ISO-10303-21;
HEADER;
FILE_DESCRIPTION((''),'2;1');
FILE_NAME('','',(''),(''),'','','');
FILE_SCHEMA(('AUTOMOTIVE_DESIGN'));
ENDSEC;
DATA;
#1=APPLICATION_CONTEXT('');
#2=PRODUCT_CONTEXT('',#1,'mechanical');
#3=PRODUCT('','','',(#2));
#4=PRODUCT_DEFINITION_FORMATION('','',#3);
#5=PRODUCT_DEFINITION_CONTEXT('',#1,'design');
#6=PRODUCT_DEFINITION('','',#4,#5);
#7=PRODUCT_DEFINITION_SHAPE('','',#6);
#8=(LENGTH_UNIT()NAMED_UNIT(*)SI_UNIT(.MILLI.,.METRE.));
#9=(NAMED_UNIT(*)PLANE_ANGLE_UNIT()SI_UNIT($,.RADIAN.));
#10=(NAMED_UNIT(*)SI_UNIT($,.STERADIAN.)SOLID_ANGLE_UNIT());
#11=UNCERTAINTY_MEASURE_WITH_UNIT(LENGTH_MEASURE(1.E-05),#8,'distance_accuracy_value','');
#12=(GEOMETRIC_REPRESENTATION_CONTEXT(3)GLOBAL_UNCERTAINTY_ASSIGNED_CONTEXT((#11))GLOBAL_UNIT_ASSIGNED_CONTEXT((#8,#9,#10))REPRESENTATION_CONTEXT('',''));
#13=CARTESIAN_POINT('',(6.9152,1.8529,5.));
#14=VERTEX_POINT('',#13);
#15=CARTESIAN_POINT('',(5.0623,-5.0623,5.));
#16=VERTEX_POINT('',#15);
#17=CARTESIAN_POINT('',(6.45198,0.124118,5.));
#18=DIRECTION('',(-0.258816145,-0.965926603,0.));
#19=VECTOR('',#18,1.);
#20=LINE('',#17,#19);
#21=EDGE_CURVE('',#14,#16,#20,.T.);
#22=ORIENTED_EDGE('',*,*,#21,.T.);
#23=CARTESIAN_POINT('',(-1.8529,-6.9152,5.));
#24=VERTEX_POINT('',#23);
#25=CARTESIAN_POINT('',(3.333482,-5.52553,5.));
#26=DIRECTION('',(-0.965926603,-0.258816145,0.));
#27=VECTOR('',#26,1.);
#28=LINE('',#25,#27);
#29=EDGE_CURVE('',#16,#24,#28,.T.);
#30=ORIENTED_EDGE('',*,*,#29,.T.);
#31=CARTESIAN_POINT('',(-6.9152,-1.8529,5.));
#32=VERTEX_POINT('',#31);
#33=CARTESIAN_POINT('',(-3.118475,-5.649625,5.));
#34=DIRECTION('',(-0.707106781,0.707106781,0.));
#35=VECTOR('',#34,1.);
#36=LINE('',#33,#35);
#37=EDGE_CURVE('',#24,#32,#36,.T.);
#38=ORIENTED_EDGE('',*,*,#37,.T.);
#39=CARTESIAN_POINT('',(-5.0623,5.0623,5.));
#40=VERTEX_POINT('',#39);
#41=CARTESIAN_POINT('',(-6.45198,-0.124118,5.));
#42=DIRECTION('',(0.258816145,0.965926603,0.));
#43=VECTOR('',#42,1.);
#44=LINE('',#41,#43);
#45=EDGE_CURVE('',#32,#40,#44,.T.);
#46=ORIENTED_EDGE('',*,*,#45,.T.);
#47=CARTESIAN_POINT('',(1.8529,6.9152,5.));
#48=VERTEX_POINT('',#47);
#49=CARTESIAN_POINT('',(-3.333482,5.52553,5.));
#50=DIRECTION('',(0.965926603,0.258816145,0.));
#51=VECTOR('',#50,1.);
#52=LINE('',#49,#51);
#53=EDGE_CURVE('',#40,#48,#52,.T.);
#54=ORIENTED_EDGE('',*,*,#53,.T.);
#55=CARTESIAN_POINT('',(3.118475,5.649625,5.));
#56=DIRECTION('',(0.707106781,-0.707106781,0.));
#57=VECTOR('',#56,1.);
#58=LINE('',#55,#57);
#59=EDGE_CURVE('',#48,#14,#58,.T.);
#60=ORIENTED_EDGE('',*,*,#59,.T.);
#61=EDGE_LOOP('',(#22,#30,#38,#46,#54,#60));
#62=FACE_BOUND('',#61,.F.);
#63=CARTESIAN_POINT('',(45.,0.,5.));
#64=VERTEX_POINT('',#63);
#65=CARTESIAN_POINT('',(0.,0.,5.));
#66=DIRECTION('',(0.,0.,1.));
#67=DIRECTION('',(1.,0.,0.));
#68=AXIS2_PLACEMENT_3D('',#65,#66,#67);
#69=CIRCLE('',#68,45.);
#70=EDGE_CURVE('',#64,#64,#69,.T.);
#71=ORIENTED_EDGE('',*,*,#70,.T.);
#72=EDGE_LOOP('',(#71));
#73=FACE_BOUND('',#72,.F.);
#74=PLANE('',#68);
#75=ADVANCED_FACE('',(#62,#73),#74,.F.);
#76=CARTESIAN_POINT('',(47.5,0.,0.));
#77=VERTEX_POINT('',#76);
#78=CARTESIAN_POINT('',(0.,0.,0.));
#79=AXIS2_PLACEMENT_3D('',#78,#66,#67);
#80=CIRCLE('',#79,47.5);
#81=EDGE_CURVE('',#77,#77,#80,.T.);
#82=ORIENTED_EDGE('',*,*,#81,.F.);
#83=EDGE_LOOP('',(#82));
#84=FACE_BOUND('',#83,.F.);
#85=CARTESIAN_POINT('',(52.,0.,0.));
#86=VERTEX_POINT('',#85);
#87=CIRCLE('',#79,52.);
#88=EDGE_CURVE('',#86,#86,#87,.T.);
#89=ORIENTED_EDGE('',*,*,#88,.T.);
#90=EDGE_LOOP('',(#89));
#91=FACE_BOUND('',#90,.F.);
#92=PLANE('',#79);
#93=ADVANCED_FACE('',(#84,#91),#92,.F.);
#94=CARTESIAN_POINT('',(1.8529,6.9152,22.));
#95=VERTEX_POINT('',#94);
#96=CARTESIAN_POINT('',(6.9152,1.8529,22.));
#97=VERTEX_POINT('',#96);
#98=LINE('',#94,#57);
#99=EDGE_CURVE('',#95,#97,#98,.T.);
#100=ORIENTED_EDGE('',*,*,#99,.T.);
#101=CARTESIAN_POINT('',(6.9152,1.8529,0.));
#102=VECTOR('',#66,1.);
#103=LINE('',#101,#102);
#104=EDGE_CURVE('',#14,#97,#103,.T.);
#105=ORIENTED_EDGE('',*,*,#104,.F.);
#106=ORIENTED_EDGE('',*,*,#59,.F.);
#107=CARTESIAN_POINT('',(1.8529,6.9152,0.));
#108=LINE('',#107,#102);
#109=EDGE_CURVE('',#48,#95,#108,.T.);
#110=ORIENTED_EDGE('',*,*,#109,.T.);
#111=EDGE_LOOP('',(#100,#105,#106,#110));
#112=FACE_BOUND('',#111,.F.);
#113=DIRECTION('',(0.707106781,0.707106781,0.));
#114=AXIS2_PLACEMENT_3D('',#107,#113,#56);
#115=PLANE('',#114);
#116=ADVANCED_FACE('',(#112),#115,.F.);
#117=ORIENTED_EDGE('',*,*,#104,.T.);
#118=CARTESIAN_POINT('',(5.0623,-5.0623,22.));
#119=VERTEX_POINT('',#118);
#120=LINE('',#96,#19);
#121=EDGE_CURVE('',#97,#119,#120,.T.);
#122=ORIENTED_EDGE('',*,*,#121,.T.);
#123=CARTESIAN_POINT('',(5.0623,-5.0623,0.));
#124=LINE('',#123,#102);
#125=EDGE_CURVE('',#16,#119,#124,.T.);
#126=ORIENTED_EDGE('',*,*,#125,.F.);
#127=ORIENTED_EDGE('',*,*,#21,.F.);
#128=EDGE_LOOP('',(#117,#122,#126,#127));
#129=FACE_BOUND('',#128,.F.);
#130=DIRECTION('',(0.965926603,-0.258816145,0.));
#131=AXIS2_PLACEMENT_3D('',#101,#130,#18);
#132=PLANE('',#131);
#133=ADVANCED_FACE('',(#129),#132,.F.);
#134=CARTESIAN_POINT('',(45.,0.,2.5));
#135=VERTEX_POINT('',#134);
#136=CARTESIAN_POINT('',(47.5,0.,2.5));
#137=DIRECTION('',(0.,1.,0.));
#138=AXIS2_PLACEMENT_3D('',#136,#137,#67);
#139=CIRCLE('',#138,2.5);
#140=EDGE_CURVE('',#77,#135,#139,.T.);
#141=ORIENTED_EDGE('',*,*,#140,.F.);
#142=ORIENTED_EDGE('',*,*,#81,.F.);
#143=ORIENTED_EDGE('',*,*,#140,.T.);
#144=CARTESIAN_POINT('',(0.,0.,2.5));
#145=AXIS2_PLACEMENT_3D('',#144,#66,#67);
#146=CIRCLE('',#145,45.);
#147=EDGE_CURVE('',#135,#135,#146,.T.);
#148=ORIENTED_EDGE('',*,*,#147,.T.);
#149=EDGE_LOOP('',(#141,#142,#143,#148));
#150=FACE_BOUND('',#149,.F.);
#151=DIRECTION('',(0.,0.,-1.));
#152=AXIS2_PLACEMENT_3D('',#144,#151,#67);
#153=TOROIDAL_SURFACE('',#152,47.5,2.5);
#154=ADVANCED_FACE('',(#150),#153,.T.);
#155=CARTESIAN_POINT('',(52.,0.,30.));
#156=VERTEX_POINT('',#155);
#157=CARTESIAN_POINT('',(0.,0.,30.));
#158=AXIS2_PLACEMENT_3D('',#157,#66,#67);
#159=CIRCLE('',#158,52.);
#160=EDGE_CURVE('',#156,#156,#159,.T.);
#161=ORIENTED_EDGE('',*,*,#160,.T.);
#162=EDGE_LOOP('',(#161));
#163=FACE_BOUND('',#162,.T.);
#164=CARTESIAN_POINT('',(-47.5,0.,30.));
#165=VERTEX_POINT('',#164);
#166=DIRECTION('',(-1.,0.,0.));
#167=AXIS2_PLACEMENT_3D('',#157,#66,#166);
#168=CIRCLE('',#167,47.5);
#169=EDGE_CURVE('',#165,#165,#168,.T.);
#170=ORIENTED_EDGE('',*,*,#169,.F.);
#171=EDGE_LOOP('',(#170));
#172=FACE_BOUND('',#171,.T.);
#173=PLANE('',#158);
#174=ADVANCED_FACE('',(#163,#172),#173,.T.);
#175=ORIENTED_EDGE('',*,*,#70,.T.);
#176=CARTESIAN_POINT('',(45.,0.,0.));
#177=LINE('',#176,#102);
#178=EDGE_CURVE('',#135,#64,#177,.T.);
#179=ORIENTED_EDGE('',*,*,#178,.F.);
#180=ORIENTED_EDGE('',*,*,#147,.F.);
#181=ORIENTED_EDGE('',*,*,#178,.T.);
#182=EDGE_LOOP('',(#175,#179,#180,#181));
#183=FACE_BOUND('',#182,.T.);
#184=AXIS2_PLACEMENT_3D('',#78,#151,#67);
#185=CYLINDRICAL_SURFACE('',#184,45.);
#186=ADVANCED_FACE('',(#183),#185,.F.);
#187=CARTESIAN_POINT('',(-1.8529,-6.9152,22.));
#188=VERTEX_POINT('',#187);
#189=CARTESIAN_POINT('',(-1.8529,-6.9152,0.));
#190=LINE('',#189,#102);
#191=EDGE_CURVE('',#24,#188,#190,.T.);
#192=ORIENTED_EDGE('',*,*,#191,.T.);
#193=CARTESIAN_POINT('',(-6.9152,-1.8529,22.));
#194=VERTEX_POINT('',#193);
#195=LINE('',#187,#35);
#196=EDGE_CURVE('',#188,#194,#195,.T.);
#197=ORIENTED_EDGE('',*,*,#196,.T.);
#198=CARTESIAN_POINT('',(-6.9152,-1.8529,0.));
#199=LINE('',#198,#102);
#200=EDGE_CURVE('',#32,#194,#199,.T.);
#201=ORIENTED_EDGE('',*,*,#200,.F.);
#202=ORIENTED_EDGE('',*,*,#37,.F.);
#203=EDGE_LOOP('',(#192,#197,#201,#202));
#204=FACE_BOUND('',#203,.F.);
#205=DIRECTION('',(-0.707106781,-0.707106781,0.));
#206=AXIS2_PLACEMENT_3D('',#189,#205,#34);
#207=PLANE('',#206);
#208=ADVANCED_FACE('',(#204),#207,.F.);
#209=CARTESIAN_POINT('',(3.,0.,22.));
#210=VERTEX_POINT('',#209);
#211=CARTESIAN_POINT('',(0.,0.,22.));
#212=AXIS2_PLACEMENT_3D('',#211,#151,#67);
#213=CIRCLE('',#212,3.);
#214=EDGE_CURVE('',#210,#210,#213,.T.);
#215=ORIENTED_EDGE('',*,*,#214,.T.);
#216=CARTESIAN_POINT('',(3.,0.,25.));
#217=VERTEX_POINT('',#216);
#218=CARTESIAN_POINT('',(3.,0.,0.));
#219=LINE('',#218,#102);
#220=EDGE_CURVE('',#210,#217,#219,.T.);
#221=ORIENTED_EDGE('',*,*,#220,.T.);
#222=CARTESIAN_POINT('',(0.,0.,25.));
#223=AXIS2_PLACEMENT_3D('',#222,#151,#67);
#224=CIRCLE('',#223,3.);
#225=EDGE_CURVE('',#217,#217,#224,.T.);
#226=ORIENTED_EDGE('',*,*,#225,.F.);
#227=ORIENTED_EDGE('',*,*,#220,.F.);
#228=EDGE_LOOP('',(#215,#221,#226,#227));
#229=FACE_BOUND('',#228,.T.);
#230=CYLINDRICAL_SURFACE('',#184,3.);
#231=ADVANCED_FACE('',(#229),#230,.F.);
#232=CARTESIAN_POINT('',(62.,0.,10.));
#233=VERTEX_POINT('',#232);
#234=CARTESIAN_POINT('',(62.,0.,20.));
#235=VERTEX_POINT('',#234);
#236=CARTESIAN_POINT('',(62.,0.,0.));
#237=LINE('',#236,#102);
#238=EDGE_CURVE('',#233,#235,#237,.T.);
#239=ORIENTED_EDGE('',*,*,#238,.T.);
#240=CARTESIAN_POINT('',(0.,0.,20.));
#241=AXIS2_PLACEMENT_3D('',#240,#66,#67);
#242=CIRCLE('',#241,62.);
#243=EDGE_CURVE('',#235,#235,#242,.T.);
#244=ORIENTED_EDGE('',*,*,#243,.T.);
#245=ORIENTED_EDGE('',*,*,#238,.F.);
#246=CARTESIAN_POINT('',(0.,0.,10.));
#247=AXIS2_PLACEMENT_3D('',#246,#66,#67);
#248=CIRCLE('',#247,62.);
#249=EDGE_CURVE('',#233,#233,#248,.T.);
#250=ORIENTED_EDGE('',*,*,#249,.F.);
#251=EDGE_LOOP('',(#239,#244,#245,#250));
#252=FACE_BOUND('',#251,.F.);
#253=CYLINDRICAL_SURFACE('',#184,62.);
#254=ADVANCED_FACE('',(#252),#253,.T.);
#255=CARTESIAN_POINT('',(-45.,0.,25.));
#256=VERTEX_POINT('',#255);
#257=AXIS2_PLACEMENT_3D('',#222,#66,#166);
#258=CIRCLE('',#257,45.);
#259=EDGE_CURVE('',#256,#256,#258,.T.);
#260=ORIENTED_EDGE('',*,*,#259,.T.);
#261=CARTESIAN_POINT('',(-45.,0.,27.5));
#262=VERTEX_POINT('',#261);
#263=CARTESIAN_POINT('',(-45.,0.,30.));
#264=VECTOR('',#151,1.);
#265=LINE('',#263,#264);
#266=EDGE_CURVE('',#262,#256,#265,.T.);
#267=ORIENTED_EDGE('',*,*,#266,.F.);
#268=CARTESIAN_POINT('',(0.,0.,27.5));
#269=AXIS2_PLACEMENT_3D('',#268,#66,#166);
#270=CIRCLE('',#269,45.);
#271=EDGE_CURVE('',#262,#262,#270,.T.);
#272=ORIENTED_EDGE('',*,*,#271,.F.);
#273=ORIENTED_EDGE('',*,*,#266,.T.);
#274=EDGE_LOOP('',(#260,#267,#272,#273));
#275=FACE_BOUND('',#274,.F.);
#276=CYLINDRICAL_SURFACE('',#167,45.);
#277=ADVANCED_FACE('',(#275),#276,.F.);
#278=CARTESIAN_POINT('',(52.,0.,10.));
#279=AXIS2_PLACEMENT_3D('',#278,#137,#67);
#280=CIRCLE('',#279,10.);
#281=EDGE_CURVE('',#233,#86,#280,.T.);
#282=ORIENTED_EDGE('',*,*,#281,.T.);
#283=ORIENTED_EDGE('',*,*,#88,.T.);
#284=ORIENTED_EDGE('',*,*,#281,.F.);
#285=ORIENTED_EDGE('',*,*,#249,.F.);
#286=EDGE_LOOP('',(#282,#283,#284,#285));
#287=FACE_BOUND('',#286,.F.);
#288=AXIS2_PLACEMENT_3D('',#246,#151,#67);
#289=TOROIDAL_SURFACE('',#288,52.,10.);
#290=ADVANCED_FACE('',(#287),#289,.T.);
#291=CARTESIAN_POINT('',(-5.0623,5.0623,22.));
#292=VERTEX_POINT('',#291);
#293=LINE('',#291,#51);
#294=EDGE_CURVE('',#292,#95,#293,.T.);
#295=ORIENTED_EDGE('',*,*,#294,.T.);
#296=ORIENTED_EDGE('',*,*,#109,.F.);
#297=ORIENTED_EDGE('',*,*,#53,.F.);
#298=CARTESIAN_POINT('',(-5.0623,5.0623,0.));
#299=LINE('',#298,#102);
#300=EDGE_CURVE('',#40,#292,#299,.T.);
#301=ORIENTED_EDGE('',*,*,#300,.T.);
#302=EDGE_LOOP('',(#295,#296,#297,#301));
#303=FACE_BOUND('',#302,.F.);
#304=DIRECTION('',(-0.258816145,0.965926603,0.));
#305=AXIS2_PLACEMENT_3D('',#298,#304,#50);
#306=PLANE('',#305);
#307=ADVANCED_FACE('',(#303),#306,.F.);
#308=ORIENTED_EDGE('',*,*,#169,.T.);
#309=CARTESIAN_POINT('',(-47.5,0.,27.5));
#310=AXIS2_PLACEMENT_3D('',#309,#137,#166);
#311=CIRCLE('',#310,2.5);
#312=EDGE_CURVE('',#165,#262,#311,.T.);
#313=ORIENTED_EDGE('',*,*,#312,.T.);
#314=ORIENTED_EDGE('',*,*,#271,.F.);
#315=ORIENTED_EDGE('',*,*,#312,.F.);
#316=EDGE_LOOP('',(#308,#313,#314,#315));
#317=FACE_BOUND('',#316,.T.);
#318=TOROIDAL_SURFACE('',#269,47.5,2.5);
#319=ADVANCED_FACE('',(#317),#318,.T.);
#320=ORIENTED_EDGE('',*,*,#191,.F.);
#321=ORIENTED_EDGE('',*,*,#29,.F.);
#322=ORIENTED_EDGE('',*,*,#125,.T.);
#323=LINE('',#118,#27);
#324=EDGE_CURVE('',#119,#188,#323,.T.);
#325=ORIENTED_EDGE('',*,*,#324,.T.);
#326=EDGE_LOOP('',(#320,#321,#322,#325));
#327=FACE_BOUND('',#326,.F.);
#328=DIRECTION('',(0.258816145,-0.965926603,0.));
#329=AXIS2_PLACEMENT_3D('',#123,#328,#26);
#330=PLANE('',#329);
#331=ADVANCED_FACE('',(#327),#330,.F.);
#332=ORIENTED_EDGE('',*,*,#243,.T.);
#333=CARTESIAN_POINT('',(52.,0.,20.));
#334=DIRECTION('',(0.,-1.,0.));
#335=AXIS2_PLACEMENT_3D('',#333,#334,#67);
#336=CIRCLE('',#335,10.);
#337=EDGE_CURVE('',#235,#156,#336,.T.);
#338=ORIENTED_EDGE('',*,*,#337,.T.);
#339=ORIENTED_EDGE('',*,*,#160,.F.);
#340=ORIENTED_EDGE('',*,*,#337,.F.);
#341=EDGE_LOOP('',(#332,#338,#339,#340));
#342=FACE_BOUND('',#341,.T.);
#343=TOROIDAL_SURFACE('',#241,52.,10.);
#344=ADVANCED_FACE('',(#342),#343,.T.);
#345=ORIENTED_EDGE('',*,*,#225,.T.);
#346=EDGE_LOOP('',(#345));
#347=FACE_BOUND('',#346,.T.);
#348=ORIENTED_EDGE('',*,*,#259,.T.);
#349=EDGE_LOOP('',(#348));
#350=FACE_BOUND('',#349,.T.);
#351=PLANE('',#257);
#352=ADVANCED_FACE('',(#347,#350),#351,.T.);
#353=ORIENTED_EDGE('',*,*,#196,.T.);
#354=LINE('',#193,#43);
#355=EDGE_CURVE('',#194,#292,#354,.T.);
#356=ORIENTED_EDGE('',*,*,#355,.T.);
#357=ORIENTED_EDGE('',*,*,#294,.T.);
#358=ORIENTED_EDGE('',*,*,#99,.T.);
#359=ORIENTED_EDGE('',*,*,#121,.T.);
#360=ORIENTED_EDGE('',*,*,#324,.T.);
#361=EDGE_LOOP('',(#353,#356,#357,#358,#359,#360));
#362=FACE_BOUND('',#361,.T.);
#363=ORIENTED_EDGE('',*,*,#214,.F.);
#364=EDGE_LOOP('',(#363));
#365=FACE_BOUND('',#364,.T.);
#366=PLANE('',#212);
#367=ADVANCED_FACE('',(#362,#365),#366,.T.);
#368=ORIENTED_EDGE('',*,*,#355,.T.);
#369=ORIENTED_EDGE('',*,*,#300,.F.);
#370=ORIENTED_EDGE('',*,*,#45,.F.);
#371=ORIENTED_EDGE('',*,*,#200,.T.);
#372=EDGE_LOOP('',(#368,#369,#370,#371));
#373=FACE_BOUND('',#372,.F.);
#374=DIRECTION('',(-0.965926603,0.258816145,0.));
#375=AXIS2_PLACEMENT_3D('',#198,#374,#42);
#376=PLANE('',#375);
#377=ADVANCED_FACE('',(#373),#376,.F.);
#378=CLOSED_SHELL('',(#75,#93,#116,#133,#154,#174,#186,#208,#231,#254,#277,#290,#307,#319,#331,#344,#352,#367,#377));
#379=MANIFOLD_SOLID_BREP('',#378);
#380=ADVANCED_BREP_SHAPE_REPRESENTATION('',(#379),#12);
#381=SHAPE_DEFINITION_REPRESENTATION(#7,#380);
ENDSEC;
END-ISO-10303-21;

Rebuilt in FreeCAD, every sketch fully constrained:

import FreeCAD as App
import Part
import Sketcher
Q = App.Units.Quantity


def edges_at(feature, points):
    """Names of the edges that pass closest to the given points."""
    edges = feature.Shape.Edges
    near = lambda p: min(range(len(edges)), key=lambda i: edges[i].distToShape(Part.Vertex(*p))[0])
    return sorted({f"Edge{near(p) + 1}" for p in points})

doc = App.newDocument("Part")
body = doc.addObject("PartDesign::Body", "Body")

# Sketch on XY plane
sketch1 = doc.addObject("Sketcher::SketchObject", "Sketch")
body.addObject(sketch1)
sketch1.AttachmentSupport = (doc.XY_Plane, [""])
sketch1.MapMode = "FlatFace"
sketch1.addGeometry(Part.Circle(App.Vector(0, 0, 0), App.Vector(0, 0, 1), 62), False)
sketch1.addConstraint(Sketcher.Constraint("Coincident", 0, 3, -1, 1))
sketch1.addConstraint(Sketcher.Constraint("Diameter", 0, 124.0))
pad1 = doc.addObject("PartDesign::Pad", "Pad")
body.addObject(pad1)
pad1.Profile = sketch1
pad1.Length = 30
doc.recompute()

fillet = doc.addObject("PartDesign::Fillet", "Fillet")
body.addObject(fillet)
fillet.Base = (pad1, edges_at(pad1, [(-57.804, -22.42, 30), (-57.804, -22.42, 0)]))
fillet.Radius = 10

# Sketch on XY plane
sketch2 = doc.addObject("Sketcher::SketchObject", "Sketch001")
body.addObject(sketch2)
sketch2.AttachmentSupport = (doc.XY_Plane, [""])
sketch2.MapMode = "FlatFace"
sketch2.addGeometry(Part.LineSegment(App.Vector(2, 7, 0), App.Vector(7, 2, 0)), False)
sketch2.addGeometry(Part.LineSegment(App.Vector(7, 2, 0), App.Vector(5, -5, 0)), False)
sketch2.addGeometry(Part.LineSegment(App.Vector(5, -5, 0), App.Vector(-2, -7, 0)), False)
sketch2.addGeometry(Part.LineSegment(App.Vector(-2, -7, 0), App.Vector(-7, -2, 0)), False)
sketch2.addGeometry(Part.LineSegment(App.Vector(-7, -2, 0), App.Vector(-5, 5, 0)), False)
sketch2.addGeometry(Part.LineSegment(App.Vector(-5, 5, 0), App.Vector(2, 7, 0)), False)
sketch2.addConstraint(Sketcher.Constraint("Coincident", 0, 2, 1, 1))
sketch2.addConstraint(Sketcher.Constraint("Coincident", 1, 2, 2, 1))
sketch2.addConstraint(Sketcher.Constraint("Coincident", 2, 2, 3, 1))
sketch2.addConstraint(Sketcher.Constraint("Coincident", 3, 2, 4, 1))
sketch2.addConstraint(Sketcher.Constraint("Coincident", 4, 2, 5, 1))
sketch2.addConstraint(Sketcher.Constraint("Coincident", 5, 2, 0, 1))
sketch2.addConstraint(Sketcher.Constraint("Symmetric", 0, 2, 3, 2, -1, 1))
sketch2.addConstraint(Sketcher.Constraint("Symmetric", 1, 2, 4, 2, -1, 1))
sketch2.addConstraint(Sketcher.Constraint("Symmetric", 2, 2, 5, 2, -1, 1))
sketch2.addConstraint(Sketcher.Constraint("Equal", 0, 1))
sketch2.addConstraint(Sketcher.Constraint("Equal", 1, 2))
sketch2.addConstraint(Sketcher.Constraint("Angle", 0, Q("-45 deg")))
sketch2.addConstraint(Sketcher.Constraint("Angle", 1, Q("-104.9998 deg")))
sketch2.addConstraint(Sketcher.Constraint("Angle", 2, Q("-165.0002 deg")))
sketch2.addConstraint(Sketcher.Constraint("DistanceY", -1, 1, 0, 2, 1.853))
pocket1 = doc.addObject("PartDesign::Pocket", "Pocket")
body.addObject(pocket1)
pocket1.Profile = sketch2
pocket1.Length = 22
pocket1.Reversed = True

# Sketch on XY plane
sketch3 = doc.addObject("Sketcher::SketchObject", "Sketch002")
body.addObject(sketch3)
sketch3.AttachmentSupport = (doc.XY_Plane, [""])
sketch3.MapMode = "FlatFace"
sketch3.addGeometry(Part.Circle(App.Vector(0, 0, 0), App.Vector(0, 0, 1), 45), False)
sketch3.addConstraint(Sketcher.Constraint("Coincident", 0, 3, -1, 1))
sketch3.addConstraint(Sketcher.Constraint("Diameter", 0, 90.0))
pocket2 = doc.addObject("PartDesign::Pocket", "Pocket001")
body.addObject(pocket2)
pocket2.Profile = sketch3
pocket2.Length = 5
pocket2.Reversed = True

# Sketch on XY plane
sketch4 = doc.addObject("Sketcher::SketchObject", "Sketch003")
body.addObject(sketch4)
sketch4.AttachmentSupport = (doc.XY_Plane, [""])
sketch4.MapMode = "FlatFace"
sketch4.AttachmentOffset = App.Placement(App.Vector(0, 0, 30), App.Rotation())
sketch4.addGeometry(Part.Circle(App.Vector(0, 0, 0), App.Vector(0, 0, 1), 45), False)
sketch4.addConstraint(Sketcher.Constraint("Coincident", 0, 3, -1, 1))
sketch4.addConstraint(Sketcher.Constraint("Diameter", 0, 90.0))
pocket3 = doc.addObject("PartDesign::Pocket", "Pocket002")
body.addObject(pocket3)
pocket3.Profile = sketch4
pocket3.Length = 5
doc.recompute()

fillet2 = doc.addObject("PartDesign::Fillet", "Fillet001")
body.addObject(fillet2)
fillet2.Base = (pocket3, edges_at(pocket3, [(41.955, -16.273, 30)]))
fillet2.Radius = 2.5
doc.recompute()

fillet3 = doc.addObject("PartDesign::Fillet", "Fillet002")
body.addObject(fillet3)
fillet3.Base = (fillet2, edges_at(fillet2, [(-41.955, -16.273, 0)]))
fillet3.Radius = 2.5

# Sketch on XY plane
sketch5 = doc.addObject("Sketcher::SketchObject", "Sketch004")
body.addObject(sketch5)
sketch5.AttachmentSupport = (doc.XY_Plane, [""])
sketch5.MapMode = "FlatFace"
sketch5.addGeometry(Part.Circle(App.Vector(0, 0, 0), App.Vector(0, 0, 1), 3), False)
sketch5.addConstraint(Sketcher.Constraint("Coincident", 0, 3, -1, 1))
sketch5.addConstraint(Sketcher.Constraint("Diameter", 0, 6.0))
pocket4 = doc.addObject("PartDesign::Pocket", "Pocket003")
body.addObject(pocket4)
pocket4.Profile = sketch5
pocket4.Type = "ThroughAll"
pocket4.Reversed = True

doc.recompute()
